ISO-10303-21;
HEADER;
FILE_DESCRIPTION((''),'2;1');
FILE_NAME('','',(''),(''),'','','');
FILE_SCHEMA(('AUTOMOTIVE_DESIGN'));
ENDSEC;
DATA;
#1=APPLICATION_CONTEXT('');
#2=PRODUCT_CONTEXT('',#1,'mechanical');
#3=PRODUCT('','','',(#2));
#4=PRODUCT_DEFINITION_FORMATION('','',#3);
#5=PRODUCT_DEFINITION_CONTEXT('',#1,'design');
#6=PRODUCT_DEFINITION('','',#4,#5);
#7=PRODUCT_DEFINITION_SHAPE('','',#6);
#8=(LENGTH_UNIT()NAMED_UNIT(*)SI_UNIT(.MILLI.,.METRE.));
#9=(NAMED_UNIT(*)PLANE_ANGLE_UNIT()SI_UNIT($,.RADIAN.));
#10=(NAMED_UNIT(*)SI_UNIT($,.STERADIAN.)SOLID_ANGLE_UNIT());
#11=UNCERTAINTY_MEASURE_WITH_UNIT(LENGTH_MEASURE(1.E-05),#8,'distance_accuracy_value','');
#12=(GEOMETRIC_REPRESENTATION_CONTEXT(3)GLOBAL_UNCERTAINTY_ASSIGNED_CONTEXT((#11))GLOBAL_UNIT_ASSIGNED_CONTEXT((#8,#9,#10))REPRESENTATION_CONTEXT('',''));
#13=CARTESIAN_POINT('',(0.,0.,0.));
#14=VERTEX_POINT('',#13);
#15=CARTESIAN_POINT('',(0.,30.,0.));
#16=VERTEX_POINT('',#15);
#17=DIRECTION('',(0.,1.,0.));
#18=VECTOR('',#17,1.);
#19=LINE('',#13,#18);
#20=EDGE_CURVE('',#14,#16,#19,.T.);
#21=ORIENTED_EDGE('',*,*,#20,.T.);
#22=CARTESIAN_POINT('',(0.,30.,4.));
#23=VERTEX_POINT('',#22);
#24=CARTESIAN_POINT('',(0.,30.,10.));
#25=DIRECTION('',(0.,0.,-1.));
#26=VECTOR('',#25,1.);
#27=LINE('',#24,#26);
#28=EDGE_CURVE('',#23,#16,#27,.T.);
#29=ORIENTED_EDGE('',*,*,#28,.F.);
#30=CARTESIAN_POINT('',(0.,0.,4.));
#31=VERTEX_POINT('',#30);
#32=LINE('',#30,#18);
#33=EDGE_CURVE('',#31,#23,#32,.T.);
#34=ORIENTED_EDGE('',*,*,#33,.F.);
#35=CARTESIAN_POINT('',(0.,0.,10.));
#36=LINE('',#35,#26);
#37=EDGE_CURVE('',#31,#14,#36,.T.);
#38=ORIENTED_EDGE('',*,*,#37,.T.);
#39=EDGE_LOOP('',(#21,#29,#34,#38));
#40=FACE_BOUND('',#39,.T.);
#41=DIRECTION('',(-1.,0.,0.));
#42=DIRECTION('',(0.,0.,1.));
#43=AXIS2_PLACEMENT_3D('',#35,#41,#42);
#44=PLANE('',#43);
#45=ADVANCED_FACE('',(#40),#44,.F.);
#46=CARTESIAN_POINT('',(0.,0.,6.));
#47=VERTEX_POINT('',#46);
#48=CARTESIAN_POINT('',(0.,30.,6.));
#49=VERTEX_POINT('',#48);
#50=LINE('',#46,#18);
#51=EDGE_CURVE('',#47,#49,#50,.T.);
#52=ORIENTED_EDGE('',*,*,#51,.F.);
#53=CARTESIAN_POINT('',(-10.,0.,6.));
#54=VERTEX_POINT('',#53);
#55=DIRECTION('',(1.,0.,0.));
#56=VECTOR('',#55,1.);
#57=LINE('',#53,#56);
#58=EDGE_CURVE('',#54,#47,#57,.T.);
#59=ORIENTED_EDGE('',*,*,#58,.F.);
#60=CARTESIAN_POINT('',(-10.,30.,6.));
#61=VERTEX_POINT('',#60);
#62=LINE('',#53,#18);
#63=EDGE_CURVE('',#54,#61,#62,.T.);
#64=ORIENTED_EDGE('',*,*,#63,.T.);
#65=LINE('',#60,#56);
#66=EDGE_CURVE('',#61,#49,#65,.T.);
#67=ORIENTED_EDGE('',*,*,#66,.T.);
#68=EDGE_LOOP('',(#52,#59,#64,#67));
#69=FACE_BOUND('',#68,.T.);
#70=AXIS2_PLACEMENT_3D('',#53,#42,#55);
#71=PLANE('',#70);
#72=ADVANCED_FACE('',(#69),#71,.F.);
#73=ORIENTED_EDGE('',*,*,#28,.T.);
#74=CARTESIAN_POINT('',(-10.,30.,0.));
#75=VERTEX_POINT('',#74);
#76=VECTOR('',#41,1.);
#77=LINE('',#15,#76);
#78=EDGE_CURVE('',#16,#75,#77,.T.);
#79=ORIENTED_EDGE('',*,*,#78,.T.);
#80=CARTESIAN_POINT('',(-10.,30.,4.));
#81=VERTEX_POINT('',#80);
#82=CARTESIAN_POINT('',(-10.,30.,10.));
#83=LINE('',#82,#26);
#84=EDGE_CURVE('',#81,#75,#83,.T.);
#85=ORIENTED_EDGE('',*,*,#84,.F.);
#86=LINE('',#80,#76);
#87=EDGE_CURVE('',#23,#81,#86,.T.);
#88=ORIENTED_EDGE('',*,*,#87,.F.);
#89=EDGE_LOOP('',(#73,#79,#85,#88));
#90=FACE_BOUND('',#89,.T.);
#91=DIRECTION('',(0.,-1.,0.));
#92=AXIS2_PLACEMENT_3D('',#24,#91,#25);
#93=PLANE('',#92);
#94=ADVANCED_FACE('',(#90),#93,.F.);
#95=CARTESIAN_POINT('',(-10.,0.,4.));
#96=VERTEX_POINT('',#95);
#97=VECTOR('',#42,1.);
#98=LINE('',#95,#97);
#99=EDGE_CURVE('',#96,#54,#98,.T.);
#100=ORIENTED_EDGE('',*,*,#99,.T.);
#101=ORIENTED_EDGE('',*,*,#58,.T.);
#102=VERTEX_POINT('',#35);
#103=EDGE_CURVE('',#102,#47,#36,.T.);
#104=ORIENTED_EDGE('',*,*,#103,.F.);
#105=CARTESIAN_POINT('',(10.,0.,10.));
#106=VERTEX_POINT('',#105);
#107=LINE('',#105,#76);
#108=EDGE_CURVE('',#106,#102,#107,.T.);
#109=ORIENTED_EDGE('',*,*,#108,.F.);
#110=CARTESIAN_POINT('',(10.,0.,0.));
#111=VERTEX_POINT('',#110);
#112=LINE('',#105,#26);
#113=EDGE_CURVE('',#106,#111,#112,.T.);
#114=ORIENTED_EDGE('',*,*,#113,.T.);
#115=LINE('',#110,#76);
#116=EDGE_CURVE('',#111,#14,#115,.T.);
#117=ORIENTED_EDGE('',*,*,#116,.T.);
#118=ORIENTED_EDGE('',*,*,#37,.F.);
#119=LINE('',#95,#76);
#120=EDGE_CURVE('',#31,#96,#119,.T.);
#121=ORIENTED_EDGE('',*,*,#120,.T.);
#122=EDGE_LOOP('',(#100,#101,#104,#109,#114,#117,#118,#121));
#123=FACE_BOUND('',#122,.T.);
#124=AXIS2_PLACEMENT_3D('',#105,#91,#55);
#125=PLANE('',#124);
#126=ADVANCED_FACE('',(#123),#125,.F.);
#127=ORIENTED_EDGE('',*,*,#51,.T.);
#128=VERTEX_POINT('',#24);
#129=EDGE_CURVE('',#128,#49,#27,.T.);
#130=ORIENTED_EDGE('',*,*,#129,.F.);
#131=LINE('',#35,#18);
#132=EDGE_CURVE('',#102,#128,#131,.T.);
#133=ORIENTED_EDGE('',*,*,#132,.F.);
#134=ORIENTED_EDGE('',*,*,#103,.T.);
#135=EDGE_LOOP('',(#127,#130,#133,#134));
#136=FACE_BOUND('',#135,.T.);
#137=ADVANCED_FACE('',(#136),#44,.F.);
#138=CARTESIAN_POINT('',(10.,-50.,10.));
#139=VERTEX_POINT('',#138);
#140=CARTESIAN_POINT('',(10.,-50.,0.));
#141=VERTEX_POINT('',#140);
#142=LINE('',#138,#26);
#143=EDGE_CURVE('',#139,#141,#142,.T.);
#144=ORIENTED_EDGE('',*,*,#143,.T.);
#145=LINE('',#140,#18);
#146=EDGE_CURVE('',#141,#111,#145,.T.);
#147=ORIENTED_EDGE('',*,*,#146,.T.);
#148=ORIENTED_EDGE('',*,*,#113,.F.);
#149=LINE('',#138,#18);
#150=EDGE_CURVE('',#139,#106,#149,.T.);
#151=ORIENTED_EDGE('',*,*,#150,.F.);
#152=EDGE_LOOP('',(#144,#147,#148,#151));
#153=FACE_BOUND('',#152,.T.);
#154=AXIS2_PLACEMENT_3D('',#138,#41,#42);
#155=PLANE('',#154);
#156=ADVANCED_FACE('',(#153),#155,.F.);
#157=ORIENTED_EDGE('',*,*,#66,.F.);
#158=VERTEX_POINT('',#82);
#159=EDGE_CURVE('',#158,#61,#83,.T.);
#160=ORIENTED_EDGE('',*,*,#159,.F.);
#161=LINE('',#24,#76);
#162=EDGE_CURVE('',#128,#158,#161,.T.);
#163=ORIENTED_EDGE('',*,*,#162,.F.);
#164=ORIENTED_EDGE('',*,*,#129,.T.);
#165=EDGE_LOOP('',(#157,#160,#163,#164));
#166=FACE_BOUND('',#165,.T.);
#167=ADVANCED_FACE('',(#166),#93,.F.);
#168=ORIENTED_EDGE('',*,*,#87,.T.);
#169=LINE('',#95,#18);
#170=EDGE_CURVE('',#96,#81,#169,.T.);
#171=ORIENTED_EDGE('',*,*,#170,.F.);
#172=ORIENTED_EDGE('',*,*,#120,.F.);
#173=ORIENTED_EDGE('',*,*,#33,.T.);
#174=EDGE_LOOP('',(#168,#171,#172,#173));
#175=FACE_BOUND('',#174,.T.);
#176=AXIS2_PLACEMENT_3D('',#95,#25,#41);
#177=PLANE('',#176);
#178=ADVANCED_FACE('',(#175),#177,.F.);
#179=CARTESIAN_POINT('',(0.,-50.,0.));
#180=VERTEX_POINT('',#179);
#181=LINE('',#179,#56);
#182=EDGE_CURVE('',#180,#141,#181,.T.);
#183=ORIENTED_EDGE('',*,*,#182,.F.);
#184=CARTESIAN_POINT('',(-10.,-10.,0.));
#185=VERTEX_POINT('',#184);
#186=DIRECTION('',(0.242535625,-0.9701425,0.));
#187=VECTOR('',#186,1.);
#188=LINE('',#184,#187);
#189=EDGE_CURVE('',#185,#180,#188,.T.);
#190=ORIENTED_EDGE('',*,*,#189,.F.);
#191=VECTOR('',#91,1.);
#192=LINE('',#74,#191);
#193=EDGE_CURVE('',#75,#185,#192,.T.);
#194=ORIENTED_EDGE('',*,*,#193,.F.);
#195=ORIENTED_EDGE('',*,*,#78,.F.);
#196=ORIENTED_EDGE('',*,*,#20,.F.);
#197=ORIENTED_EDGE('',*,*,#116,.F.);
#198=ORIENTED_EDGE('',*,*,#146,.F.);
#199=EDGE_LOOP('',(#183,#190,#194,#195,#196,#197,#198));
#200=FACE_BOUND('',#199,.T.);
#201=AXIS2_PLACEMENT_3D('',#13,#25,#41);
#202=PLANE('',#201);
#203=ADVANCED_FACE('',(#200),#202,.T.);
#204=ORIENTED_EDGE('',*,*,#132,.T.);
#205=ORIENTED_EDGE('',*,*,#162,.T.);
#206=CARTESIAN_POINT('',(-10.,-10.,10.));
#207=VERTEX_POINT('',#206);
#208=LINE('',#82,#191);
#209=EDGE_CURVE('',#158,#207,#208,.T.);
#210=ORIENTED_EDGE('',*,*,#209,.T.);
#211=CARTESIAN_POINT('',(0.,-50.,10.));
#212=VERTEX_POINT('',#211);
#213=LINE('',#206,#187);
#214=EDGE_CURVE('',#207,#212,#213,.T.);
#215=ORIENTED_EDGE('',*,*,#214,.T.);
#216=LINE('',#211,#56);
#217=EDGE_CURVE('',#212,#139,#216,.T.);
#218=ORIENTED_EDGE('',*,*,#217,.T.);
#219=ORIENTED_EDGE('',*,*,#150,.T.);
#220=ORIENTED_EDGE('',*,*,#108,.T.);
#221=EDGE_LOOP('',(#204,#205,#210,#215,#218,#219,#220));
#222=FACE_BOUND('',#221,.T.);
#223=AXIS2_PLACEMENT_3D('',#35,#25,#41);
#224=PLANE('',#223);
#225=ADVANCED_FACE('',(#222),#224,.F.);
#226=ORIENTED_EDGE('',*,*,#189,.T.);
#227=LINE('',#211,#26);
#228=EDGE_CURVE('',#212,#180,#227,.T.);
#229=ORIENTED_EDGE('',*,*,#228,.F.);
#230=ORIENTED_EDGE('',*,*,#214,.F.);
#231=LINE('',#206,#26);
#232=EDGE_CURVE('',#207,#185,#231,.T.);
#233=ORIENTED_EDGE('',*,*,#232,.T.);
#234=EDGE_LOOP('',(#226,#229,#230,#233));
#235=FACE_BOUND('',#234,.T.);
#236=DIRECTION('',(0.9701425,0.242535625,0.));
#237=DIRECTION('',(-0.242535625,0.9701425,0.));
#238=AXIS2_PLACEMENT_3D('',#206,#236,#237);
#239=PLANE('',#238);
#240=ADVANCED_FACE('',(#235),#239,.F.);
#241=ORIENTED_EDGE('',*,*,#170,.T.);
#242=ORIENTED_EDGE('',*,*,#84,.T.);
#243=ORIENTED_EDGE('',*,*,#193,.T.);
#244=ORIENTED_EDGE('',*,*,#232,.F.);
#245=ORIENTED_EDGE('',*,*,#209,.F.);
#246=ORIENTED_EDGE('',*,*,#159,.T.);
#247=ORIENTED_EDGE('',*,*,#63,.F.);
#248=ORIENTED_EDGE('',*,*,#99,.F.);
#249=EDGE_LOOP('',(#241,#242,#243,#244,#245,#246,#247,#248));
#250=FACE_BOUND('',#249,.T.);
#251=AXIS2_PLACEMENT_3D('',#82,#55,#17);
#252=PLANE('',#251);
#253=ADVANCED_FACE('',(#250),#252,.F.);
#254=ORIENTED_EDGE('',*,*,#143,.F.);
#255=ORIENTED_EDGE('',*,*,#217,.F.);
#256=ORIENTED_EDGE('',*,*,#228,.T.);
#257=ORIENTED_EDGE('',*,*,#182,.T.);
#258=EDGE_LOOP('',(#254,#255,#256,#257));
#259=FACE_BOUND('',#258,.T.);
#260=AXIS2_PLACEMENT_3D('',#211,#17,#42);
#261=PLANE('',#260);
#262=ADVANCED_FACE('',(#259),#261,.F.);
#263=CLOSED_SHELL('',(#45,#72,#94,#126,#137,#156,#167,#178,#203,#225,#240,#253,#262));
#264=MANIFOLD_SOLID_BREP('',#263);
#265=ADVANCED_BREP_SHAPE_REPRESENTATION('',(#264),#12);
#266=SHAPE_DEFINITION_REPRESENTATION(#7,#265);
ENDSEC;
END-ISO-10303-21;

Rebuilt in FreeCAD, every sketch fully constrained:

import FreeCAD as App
import Part
import Sketcher


def add_polygon(sketch, points):
    """Adds a closed chain of lines whose ends are joined by coincident constraints."""
    first, n = sketch.GeometryCount, len(points)
    for a, b in zip(points, points[1:] + points[:1]):
        sketch.addGeometry(Part.LineSegment(App.Vector(*a, 0), App.Vector(*b, 0)), False)
    for i in range(n):
        sketch.addConstraint(Sketcher.Constraint("Coincident", first + i, 2, first + (i + 1) % n, 1))

doc = App.newDocument("Part")
body = doc.addObject("PartDesign::Body", "Body")

sketch1 = body.newObject("Sketcher::SketchObject", "Sketch")
sketch1.AttachmentSupport = (doc.getObject("XY_Plane"), [""])
sketch1.MapMode = "FlatFace"
add_polygon(sketch1, [(0, 0), (0, 30), (-10, 30), (-10, -10), (0, -50), (10, -50), (10, 0)])
sketch1.addConstraint(Sketcher.Constraint("Vertical", 0))
sketch1.addConstraint(Sketcher.Constraint("Horizontal", 1))
sketch1.addConstraint(Sketcher.Constraint("Vertical", 2))
sketch1.addConstraint(Sketcher.Constraint("Horizontal", 4))
sketch1.addConstraint(Sketcher.Constraint("Vertical", 5))
sketch1.addConstraint(Sketcher.Constraint("Horizontal", 6))
sketch1.addConstraint(Sketcher.Constraint("Coincident", 6, 2, -1, 1))
sketch1.addConstraint(Sketcher.Constraint("PointOnObject", 3, 2, -2))
sketch1.addConstraint(Sketcher.Constraint("Equal", 1, 4))
sketch1.addConstraint(Sketcher.Constraint("DistanceX", 1, 2, 1, 1, 10.0))
sketch1.addConstraint(Sketcher.Constraint("DistanceY", 0, 1, 0, 2, 30.0))
sketch1.addConstraint(Sketcher.Constraint("DistanceY", 2, 2, 2, 1, 40.0))
sketch1.addConstraint(Sketcher.Constraint("DistanceY", 5, 1, 5, 2, 50.0))
pad1 = body.newObject("PartDesign::Pad", "Pad")
pad1.Profile = sketch1
pad1.Length = 10

sketch2 = body.newObject("Sketcher::SketchObject", "Sketch001")
sketch2.AttachmentSupport = (doc.getObject("XZ_Plane"), [""])
sketch2.MapMode = "FlatFace"
sketch2.AttachmentOffset = App.Placement(App.Vector(0, 0, -30), App.Rotation())
add_polygon(sketch2, [(-10, 4), (-10, 6), (0, 6), (0, 4)])
sketch2.addConstraint(Sketcher.Constraint("Vertical", 0))
sketch2.addConstraint(Sketcher.Constraint("Horizontal", 1))
sketch2.addConstraint(Sketcher.Constraint("Vertical", 2))
sketch2.addConstraint(Sketcher.Constraint("Horizontal", 3))
sketch2.addConstraint(Sketcher.Constraint("PointOnObject", 1, 2, -2))
sketch2.addConstraint(Sketcher.Constraint("DistanceX", 1, 1, 1, 2, 10.0))
sketch2.addConstraint(Sketcher.Constraint("DistanceY", 0, 1, 0, 2, 2.0))
sketch2.addConstraint(Sketcher.Constraint("DistanceY", -1, 1, 0, 2, 6.0))
pocket1 = body.newObject("PartDesign::Pocket", "Pocket")
pocket1.Profile = sketch2
pocket1.Length = 30
pocket1.Reversed = True

doc.recompute()
